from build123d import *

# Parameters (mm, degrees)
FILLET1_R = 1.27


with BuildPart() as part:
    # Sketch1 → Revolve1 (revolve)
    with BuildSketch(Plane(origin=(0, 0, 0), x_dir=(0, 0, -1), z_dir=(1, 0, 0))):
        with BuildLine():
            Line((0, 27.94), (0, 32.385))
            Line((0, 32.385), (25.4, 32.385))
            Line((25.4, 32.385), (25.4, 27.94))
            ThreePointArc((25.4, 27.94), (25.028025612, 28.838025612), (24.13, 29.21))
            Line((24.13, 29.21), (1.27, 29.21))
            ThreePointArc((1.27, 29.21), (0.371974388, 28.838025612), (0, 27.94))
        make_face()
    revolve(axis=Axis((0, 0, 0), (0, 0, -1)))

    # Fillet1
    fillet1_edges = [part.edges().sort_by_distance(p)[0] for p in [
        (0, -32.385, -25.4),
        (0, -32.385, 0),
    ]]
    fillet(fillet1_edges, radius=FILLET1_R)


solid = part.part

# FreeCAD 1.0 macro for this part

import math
import FreeCAD as App
import Part
import Sketcher

V = App.Vector
Q = App.Units.Quantity


def edges_at(feature, points):
    """Names of the edges that pass closest to the given points."""
    edges = feature.Shape.Edges
    near = lambda p: min(range(len(edges)), key=lambda i: edges[i].distToShape(Part.Vertex(*p))[0])
    return sorted({f"Edge{near(p) + 1}" for p in points})

doc = App.newDocument("Part")
body = doc.addObject("PartDesign::Body", "Body")

sketch1 = body.newObject("Sketcher::SketchObject", "Sketch")
sketch1.AttachmentSupport = (doc.getObject("YZ_Plane"), [""])
sketch1.MapMode = "FlatFace"
sketch1.addGeometry(Part.LineSegment(V(32.4, 0, 0), V(27.9, 0, 0)), False)
sketch1.addGeometry(Part.ArcOfCircle(Part.Circle(V(27.9, -1.3, 0), V(0, 0, 1), 1.3), math.radians(0), math.radians(90)), False)
sketch1.addGeometry(Part.LineSegment(V(29.2, -1.3, 0), V(29.2, -24.1, 0)), False)
sketch1.addGeometry(Part.ArcOfCircle(Part.Circle(V(27.9, -24.1, 0), V(0, 0, 1), 1.3), math.radians(-90), math.radians(0)), False)
sketch1.addGeometry(Part.LineSegment(V(27.9, -25.4, 0), V(32.4, -25.4, 0)), False)
sketch1.addGeometry(Part.LineSegment(V(32.4, -25.4, 0), V(32.4, 0, 0)), False)
sketch1.addConstraint(Sketcher.Constraint("Tangent", 0, 2, 1, 2))
sketch1.addConstraint(Sketcher.Constraint("Tangent", 1, 1, 2, 1))
sketch1.addConstraint(Sketcher.Constraint("Tangent", 2, 2, 3, 2))
sketch1.addConstraint(Sketcher.Constraint("Tangent", 3, 1, 4, 1))
sketch1.addConstraint(Sketcher.Constraint("Coincident", 4, 2, 5, 1))
sketch1.addConstraint(Sketcher.Constraint("Coincident", 5, 2, 0, 1))
sketch1.addConstraint(Sketcher.Constraint("Horizontal", 0))
sketch1.addConstraint(Sketcher.Constraint("Vertical", 2))
sketch1.addConstraint(Sketcher.Constraint("Horizontal", 4))
sketch1.addConstraint(Sketcher.Constraint("Vertical", 5))
sketch1.addConstraint(Sketcher.Constraint("Equal", 1, 3))
sketch1.addConstraint(Sketcher.Constraint("PointOnObject", 0, 2, -1))
sketch1.addConstraint(Sketcher.Constraint("DistanceY", 5, 1, 5, 2, Q("1 in")))
sketch1.addConstraint(Sketcher.Constraint("Radius", 1, Q("0.05 in")))
sketch1.addConstraint(Sketcher.Constraint("DistanceX", -1, 1, 1, 3, Q("1.1 in")))
sketch1.addConstraint(Sketcher.Constraint("DistanceX", 0, 2, 0, 1, Q("0.175 in")))
revolution = body.newObject("PartDesign::Revolution", "Revolution")
revolution.Profile = sketch1
revolution.ReferenceAxis = (sketch1, ["V_Axis"])
revolution.Angle = 360
doc.recompute()

fillet = body.newObject("PartDesign::Fillet", "Fillet")
fillet.Base = (revolution, edges_at(revolution, [(0, -32.385, -25.4), (0, -32.385, 0)]))
fillet.Radius = Q("0.05 in")

doc.recompute()
